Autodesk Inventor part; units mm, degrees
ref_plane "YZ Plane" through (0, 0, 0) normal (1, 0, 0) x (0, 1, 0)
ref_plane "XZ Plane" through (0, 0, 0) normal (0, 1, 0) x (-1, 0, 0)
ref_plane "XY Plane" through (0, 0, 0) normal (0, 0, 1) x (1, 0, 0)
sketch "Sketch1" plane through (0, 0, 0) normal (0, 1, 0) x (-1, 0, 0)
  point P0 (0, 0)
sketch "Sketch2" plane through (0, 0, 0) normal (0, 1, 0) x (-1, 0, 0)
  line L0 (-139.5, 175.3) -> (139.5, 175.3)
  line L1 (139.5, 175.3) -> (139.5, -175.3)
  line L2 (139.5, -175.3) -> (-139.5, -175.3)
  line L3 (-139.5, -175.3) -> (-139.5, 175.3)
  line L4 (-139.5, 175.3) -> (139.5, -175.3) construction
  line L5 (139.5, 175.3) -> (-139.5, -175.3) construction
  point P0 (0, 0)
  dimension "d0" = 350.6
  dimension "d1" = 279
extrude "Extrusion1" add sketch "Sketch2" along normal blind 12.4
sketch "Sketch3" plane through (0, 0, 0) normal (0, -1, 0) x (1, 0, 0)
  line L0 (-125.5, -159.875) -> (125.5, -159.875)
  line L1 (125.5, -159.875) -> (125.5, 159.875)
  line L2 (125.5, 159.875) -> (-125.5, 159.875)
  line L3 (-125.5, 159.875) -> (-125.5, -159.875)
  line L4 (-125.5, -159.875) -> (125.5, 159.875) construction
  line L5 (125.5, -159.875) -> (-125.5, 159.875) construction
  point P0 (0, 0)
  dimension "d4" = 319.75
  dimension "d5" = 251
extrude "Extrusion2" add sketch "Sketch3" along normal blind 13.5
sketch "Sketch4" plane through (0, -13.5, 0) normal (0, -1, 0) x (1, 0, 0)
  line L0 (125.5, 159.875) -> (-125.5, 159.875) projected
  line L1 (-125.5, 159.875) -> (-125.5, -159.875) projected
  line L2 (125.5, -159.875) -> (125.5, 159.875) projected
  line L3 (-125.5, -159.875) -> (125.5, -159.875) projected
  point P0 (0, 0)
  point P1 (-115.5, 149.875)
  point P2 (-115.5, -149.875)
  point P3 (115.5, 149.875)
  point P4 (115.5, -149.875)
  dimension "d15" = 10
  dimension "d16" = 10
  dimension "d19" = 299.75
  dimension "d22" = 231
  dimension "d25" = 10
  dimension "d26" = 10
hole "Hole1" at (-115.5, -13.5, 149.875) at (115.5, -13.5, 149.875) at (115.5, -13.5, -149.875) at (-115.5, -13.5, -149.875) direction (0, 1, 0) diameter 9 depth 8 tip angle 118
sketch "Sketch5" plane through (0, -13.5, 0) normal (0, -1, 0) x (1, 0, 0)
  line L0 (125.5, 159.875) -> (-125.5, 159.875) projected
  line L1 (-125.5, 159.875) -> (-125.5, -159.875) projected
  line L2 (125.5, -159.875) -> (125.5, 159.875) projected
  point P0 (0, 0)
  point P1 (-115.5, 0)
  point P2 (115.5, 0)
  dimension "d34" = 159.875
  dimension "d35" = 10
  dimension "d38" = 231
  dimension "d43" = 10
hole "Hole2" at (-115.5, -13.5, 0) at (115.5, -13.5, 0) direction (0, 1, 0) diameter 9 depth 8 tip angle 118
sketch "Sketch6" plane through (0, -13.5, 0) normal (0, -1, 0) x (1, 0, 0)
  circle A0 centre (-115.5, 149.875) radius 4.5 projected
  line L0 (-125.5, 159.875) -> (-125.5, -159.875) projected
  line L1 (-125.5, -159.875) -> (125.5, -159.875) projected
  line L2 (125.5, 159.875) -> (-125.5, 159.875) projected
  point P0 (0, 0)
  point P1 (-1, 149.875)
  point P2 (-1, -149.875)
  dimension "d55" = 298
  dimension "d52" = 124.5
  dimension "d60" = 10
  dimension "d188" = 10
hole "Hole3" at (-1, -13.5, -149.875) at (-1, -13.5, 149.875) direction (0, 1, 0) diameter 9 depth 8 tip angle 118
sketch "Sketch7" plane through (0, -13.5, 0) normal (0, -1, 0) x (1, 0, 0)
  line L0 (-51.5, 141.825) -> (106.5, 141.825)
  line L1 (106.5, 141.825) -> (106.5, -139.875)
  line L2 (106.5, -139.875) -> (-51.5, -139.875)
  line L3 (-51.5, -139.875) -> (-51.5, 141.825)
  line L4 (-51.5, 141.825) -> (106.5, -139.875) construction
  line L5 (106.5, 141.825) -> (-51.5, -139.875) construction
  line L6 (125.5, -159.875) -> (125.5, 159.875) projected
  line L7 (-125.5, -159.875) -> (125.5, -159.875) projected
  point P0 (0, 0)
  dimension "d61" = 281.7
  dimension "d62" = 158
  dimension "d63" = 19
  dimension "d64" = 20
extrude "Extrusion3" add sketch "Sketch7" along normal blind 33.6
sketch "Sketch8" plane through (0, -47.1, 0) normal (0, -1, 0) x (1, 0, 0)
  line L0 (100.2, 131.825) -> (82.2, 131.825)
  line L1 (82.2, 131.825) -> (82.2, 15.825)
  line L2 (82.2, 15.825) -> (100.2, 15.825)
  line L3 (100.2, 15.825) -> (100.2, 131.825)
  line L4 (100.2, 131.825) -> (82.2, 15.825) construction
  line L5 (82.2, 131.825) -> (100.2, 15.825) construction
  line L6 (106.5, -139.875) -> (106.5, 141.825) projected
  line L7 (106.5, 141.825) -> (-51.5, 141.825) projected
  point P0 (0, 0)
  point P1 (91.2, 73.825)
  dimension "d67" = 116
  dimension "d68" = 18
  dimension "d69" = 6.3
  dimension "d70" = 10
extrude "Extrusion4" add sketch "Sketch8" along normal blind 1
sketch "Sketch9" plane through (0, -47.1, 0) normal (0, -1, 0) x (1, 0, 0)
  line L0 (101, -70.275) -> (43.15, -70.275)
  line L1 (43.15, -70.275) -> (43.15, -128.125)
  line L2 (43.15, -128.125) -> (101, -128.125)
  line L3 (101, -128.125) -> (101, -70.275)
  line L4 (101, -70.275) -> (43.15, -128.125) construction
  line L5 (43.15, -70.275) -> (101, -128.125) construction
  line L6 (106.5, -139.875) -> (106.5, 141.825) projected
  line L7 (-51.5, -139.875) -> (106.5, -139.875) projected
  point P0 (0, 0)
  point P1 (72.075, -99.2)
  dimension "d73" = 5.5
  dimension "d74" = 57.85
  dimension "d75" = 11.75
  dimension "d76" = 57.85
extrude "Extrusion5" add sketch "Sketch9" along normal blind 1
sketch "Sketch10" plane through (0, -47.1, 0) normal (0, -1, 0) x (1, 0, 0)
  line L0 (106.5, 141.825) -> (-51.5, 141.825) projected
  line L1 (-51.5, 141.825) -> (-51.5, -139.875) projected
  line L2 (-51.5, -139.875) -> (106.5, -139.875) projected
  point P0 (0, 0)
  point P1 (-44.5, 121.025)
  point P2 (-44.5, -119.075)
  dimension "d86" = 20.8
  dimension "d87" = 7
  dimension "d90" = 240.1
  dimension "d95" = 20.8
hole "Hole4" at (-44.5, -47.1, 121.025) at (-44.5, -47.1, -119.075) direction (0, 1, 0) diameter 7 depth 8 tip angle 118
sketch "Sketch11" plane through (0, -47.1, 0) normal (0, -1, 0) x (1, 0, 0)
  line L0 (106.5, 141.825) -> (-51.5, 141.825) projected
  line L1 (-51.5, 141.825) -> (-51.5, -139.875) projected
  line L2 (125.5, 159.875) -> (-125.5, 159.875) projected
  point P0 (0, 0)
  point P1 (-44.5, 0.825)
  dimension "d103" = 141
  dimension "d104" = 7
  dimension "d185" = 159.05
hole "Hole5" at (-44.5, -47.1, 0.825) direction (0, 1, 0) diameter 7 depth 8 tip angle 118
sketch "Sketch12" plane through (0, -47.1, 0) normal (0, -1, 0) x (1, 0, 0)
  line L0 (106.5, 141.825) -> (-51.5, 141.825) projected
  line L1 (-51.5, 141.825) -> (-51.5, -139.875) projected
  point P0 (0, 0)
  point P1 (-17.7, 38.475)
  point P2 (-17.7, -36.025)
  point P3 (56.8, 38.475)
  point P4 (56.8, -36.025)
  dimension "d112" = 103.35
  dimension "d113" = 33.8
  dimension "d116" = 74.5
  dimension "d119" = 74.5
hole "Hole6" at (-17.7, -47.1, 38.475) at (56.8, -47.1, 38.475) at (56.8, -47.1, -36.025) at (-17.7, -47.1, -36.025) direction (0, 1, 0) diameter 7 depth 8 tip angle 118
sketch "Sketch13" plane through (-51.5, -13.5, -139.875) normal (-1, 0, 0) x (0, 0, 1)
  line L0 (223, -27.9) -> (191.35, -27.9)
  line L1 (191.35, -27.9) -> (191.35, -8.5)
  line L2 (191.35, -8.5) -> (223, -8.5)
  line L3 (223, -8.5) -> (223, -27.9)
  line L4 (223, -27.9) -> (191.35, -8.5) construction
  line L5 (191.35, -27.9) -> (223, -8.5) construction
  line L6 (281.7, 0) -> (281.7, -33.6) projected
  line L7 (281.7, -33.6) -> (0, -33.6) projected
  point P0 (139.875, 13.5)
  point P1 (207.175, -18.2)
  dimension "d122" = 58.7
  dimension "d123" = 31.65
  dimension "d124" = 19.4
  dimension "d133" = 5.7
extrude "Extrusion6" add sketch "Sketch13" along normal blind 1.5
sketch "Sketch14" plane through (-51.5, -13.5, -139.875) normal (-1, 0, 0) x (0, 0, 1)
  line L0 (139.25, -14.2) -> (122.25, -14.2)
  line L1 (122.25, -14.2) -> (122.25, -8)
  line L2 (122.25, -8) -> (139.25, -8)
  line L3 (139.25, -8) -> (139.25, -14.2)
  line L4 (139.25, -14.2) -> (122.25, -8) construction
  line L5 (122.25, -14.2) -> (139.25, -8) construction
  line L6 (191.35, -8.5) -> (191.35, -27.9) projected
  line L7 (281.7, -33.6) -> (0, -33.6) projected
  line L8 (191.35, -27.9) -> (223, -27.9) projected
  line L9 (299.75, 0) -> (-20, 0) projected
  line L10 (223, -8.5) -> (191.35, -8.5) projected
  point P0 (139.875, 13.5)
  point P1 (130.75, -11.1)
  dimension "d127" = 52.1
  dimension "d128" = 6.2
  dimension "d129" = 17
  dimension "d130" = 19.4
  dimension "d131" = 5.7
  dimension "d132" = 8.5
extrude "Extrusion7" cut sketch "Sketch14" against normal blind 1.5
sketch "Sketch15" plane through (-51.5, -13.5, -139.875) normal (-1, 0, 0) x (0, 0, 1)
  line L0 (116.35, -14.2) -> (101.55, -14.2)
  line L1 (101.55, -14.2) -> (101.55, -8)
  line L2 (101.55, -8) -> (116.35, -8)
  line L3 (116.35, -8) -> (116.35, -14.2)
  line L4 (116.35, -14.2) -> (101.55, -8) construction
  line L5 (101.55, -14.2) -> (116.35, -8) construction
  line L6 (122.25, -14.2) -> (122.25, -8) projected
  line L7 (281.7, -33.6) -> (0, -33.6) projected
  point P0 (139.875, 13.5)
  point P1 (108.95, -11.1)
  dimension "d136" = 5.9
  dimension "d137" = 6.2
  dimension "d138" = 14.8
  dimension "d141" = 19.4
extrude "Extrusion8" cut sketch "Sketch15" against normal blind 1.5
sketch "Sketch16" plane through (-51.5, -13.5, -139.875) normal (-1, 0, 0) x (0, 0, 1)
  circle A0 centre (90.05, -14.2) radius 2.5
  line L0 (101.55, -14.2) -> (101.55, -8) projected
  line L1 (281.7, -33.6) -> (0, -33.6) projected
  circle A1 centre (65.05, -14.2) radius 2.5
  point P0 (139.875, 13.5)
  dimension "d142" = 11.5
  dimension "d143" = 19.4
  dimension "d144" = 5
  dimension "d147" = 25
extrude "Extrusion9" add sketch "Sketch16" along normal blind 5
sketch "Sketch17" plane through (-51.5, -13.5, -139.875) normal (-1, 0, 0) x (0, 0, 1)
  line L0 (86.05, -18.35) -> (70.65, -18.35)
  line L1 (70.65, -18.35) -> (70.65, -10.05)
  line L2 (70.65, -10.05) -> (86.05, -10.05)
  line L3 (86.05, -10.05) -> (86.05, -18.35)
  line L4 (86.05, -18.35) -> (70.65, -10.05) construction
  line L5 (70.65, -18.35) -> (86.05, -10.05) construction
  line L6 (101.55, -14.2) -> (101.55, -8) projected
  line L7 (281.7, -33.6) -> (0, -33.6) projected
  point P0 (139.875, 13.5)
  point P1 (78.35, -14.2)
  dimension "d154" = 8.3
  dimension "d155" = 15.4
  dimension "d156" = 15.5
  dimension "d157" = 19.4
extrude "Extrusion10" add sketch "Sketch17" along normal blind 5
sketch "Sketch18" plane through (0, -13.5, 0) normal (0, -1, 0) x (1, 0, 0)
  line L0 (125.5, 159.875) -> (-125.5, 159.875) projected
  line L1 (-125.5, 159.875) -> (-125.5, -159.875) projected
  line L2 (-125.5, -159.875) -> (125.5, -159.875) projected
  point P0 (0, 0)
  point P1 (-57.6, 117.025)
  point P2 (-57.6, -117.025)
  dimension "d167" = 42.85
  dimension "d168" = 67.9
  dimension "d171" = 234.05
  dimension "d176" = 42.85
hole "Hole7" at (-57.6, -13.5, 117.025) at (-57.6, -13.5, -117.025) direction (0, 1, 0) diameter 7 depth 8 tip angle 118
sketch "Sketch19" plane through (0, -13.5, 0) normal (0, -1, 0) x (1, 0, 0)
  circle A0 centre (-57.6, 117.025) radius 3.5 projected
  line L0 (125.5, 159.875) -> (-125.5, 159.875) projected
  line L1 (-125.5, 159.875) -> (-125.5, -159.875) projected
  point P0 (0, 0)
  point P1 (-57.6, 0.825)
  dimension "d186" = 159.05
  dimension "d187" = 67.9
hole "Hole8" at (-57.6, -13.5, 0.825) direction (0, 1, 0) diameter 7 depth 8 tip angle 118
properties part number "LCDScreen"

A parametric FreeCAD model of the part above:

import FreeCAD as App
import Part
import Sketcher

V = App.Vector
Q = App.Units.Quantity


def add_polygon(sketch, points):
    """Adds a closed chain of lines whose ends are joined by coincident constraints."""
    first, n = sketch.GeometryCount, len(points)
    for a, b in zip(points, points[1:] + points[:1]):
        sketch.addGeometry(Part.LineSegment(App.Vector(*a, 0), App.Vector(*b, 0)), False)
    for i in range(n):
        sketch.addConstraint(Sketcher.Constraint("Coincident", first + i, 2, first + (i + 1) % n, 1))

doc = App.newDocument("Part")
body = doc.addObject("PartDesign::Body", "Body")

# Sketch on XZ plane
sketch1 = body.newObject("Sketcher::SketchObject", "Sketch")
sketch1.AttachmentSupport = (doc.getObject("XZ_Plane"), [""])
sketch1.MapMode = "FlatFace"
add_polygon(sketch1, [(-140, 175), (140, 175), (140, -175), (-140, -175)])  # lines 0-3
sketch1.addConstraint([
    Sketcher.Constraint("Horizontal", 0),
    Sketcher.Constraint("Vertical", 1),
    Sketcher.Constraint("Horizontal", 2),
    Sketcher.Constraint("Vertical", 3),
    Sketcher.Constraint("Symmetric", 0, 2, 2, 2, -1, 1),
    Sketcher.Constraint("DistanceX", 0, 1, 0, 2, Q("279 mm")),
    Sketcher.Constraint("DistanceY", 1, 2, 1, 1, Q("350.6 mm")),
])
pad1 = body.newObject("PartDesign::Pad", "Pad")
pad1.Profile = sketch1
pad1.Length = 12.4
pad1.Reversed = True

# Sketch on XZ plane
sketch2 = body.newObject("Sketcher::SketchObject", "Sketch001")
sketch2.AttachmentSupport = (doc.getObject("XZ_Plane"), [""])
sketch2.MapMode = "FlatFace"
add_polygon(sketch2, [(-126, 160), (-126, -160), (126, -160), (126, 160)])  # lines 0-3
sketch2.addConstraint([
    Sketcher.Constraint("Vertical", 0),
    Sketcher.Constraint("Horizontal", 1),
    Sketcher.Constraint("Vertical", 2),
    Sketcher.Constraint("Horizontal", 3),
    Sketcher.Constraint("Symmetric", 0, 2, 2, 2, -1, 1),
    Sketcher.Constraint("DistanceX", 1, 1, 1, 2, Q("251 mm")),
    Sketcher.Constraint("DistanceY", 0, 2, 0, 1, Q("319.75 mm")),
])
pad2 = body.newObject("PartDesign::Pad", "Pad001")
pad2.Profile = sketch2
pad2.Length = 13.5

# Sketch on XZ plane
sketch3 = body.newObject("Sketcher::SketchObject", "Sketch002")
sketch3.AttachmentSupport = (doc.getObject("XZ_Plane"), [""])
sketch3.MapMode = "FlatFace"
sketch3.AttachmentOffset = App.Placement(V(0, 0, 13.5), App.Rotation())
sketch3.addGeometry([
    Part.Circle(V(-115.5, 149.9, 0), V(0, 0, 1), 4.5),
    Part.Circle(V(115.5, 149.9, 0), V(0, 0, 1), 4.5),
    Part.Circle(V(115.5, -149.9, 0), V(0, 0, 1), 4.5),
    Part.Circle(V(-115.5, -149.9, 0), V(0, 0, 1), 4.5),
], False)
sketch3.addConstraint([
    Sketcher.Constraint("Equal", 0, 1),
    Sketcher.Constraint("Equal", 1, 2),
    Sketcher.Constraint("Equal", 2, 3),
    Sketcher.Constraint("Symmetric", 0, 3, 2, 3, -1, 1),
    Sketcher.Constraint("Symmetric", 1, 3, 3, 3, -1, 1),
    Sketcher.Constraint("Symmetric", 0, 3, 1, 3, -2),
    Sketcher.Constraint("Diameter", 0, Q("9 mm")),
    Sketcher.Constraint("DistanceX", 0, 3, 1, 3, Q("231 mm")),
    Sketcher.Constraint("DistanceY", 2, 3, 1, 3, Q("299.75 mm")),
])
doc.recompute()
hole = body.newObject("PartDesign::Hole", "Hole")
hole.Profile = sketch3
hole.ThreadType = "None"
hole.Diameter = 9
hole.DepthType = "Dimension"
hole.Depth = 8
hole.DrillPoint = "Angled"
hole.DrillPointAngle = 118

# Sketch on XZ plane
sketch4 = body.newObject("Sketcher::SketchObject", "Sketch003")
sketch4.AttachmentSupport = (doc.getObject("XZ_Plane"), [""])
sketch4.MapMode = "FlatFace"
sketch4.AttachmentOffset = App.Placement(V(0, 0, 13.5), App.Rotation())
sketch4.addGeometry([
    Part.Circle(V(-115.5, 0, 0), V(0, 0, 1), 4.5),
    Part.Circle(V(115.5, 0, 0), V(0, 0, 1), 4.5),
], False)
sketch4.addConstraint([
    Sketcher.Constraint("Equal", 0, 1),
    Sketcher.Constraint("Symmetric", 0, 3, 1, 3, -1, 1),
    Sketcher.Constraint("PointOnObject", 0, 3, -1),
    Sketcher.Constraint("Diameter", 0, Q("9 mm")),
    Sketcher.Constraint("DistanceX", 0, 3, 1, 3, Q("231 mm")),
])
doc.recompute()
hole2 = body.newObject("PartDesign::Hole", "Hole001")
hole2.Profile = sketch4
hole2.ThreadType = "None"
hole2.Diameter = 9
hole2.DepthType = "Dimension"
hole2.Depth = 8
hole2.DrillPoint = "Angled"
hole2.DrillPointAngle = 118

# Sketch on XZ plane
sketch5 = body.newObject("Sketcher::SketchObject", "Sketch004")
sketch5.AttachmentSupport = (doc.getObject("XZ_Plane"), [""])
sketch5.MapMode = "FlatFace"
sketch5.AttachmentOffset = App.Placement(V(0, 0, 13.5), App.Rotation())
sketch5.addGeometry([
    Part.Circle(V(-1, -149.9, 0), V(0, 0, 1), 4.5),
    Part.Circle(V(-1, 149.9, 0), V(0, 0, 1), 4.5),
], False)
sketch5.addConstraint([
    Sketcher.Constraint("Equal", 0, 1),
    Sketcher.Constraint("Symmetric", 0, 3, 1, 3, -1),
    Sketcher.Constraint("Diameter", 0, Q("9 mm")),
    Sketcher.Constraint("DistanceX", 0, 3, -1, 1, Q("1 mm")),
    Sketcher.Constraint("DistanceY", 0, 3, 1, 3, Q("299.75 mm")),
])
doc.recompute()
hole3 = body.newObject("PartDesign::Hole", "Hole002")
hole3.Profile = sketch5
hole3.ThreadType = "None"
hole3.Diameter = 9
hole3.DepthType = "Dimension"
hole3.Depth = 8
hole3.DrillPoint = "Angled"
hole3.DrillPointAngle = 118

# Sketch on XZ plane
sketch6 = body.newObject("Sketcher::SketchObject", "Sketch005")
sketch6.AttachmentSupport = (doc.getObject("XZ_Plane"), [""])
sketch6.MapMode = "FlatFace"
sketch6.AttachmentOffset = App.Placement(V(0, 0, 13.5), App.Rotation())
add_polygon(sketch6, [(106, 142), (-52, 142), (-52, -140), (106, -140)])  # lines 0-3
sketch6.addConstraint([
    Sketcher.Constraint("Horizontal", 0),
    Sketcher.Constraint("Vertical", 1),
    Sketcher.Constraint("Horizontal", 2),
    Sketcher.Constraint("Vertical", 3),
    Sketcher.Constraint("DistanceX", 0, 2, 0, 1, Q("158 mm")),
    Sketcher.Constraint("DistanceY", 1, 2, 1, 1, Q("281.7 mm")),
    Sketcher.Constraint("DistanceX", 0, 2, -1, 1, Q("51.5 mm")),
    Sketcher.Constraint("DistanceY", -1, 1, 0, 2, Q("141.825 mm")),
])
pad3 = body.newObject("PartDesign::Pad", "Pad002")
pad3.Profile = sketch6
pad3.Length = 33.6

# Sketch on XZ plane
sketch7 = body.newObject("Sketcher::SketchObject", "Sketch006")
sketch7.AttachmentSupport = (doc.getObject("XZ_Plane"), [""])
sketch7.MapMode = "FlatFace"
sketch7.AttachmentOffset = App.Placement(V(0, 0, 47.1), App.Rotation())
add_polygon(sketch7, [(100, 16), (100, 132), (82, 132), (82, 16)])  # lines 0-3
sketch7.addConstraint([
    Sketcher.Constraint("Vertical", 0),
    Sketcher.Constraint("Horizontal", 1),
    Sketcher.Constraint("Vertical", 2),
    Sketcher.Constraint("Horizontal", 3),
    Sketcher.Constraint("DistanceX", 1, 2, 1, 1, Q("18 mm")),
    Sketcher.Constraint("DistanceY", 0, 1, 0, 2, Q("116 mm")),
    Sketcher.Constraint("DistanceX", -1, 1, 0, 2, Q("100.2 mm")),
    Sketcher.Constraint("DistanceY", -1, 1, 0, 2, Q("131.825 mm")),
])
pad4 = body.newObject("PartDesign::Pad", "Pad003")
pad4.Profile = sketch7
pad4.Length = 1

# Sketch on XZ plane
sketch8 = body.newObject("Sketcher::SketchObject", "Sketch007")
sketch8.AttachmentSupport = (doc.getObject("XZ_Plane"), [""])
sketch8.MapMode = "FlatFace"
sketch8.AttachmentOffset = App.Placement(V(0, 0, 47.1), App.Rotation())
add_polygon(sketch8, [(101, -128), (101, -70), (43, -70), (43, -128)])  # lines 0-3
sketch8.addConstraint([
    Sketcher.Constraint("Vertical", 0),
    Sketcher.Constraint("Horizontal", 1),
    Sketcher.Constraint("Vertical", 2),
    Sketcher.Constraint("Horizontal", 3),
    Sketcher.Constraint("Equal", 3, 0),
    Sketcher.Constraint("DistanceX", 1, 2, 1, 1, Q("57.85 mm")),
    Sketcher.Constraint("DistanceX", -1, 1, 0, 2, Q("101 mm")),
    Sketcher.Constraint("DistanceY", 0, 2, -1, 1, Q("70.275 mm")),
])
pad5 = body.newObject("PartDesign::Pad", "Pad004")
pad5.Profile = sketch8
pad5.Length = 1

# Sketch on XZ plane
sketch9 = body.newObject("Sketcher::SketchObject", "Sketch008")
sketch9.AttachmentSupport = (doc.getObject("XZ_Plane"), [""])
sketch9.MapMode = "FlatFace"
sketch9.AttachmentOffset = App.Placement(V(0, 0, 47.1), App.Rotation())
sketch9.addGeometry([
    Part.Circle(V(-44.5, 121, 0), V(0, 0, 1), 3.5),
    Part.Circle(V(-44.5, -119.1, 0), V(0, 0, 1), 3.5),
], False)
sketch9.addConstraint([
    Sketcher.Constraint("Equal", 0, 1),
    Sketcher.Constraint("Vertical", 0, 3, 1, 3),
    Sketcher.Constraint("Diameter", 0, Q("7 mm")),
    Sketcher.Constraint("DistanceX", 0, 3, -1, 1, Q("44.5 mm")),
    Sketcher.Constraint("DistanceY", 1, 3, 0, 3, Q("240.1 mm")),
    Sketcher.Constraint("DistanceY", -1, 1, 0, 3, Q("121.025 mm")),
])
doc.recompute()
hole4 = body.newObject("PartDesign::Hole", "Hole003")
hole4.Profile = sketch9
hole4.ThreadType = "None"
hole4.Diameter = 7
hole4.DepthType = "Dimension"
hole4.Depth = 8
hole4.DrillPoint = "Angled"
hole4.DrillPointAngle = 118

# Sketch on XZ plane
sketch10 = body.newObject("Sketcher::SketchObject", "Sketch009")
sketch10.AttachmentSupport = (doc.getObject("XZ_Plane"), [""])
sketch10.MapMode = "FlatFace"
sketch10.AttachmentOffset = App.Placement(V(0, 0, 47.1), App.Rotation())
sketch10.addGeometry(Part.Circle(V(-44.5, 0.8, 0), V(0, 0, 1), 3.5), False)
sketch10.addConstraint([
    Sketcher.Constraint("Diameter", 0, Q("7 mm")),
    Sketcher.Constraint("DistanceX", 0, 3, -1, 1, Q("44.5 mm")),
    Sketcher.Constraint("DistanceY", -1, 1, 0, 3, Q("0.825 mm")),
])
doc.recompute()
hole5 = body.newObject("PartDesign::Hole", "Hole004")
hole5.Profile = sketch10
hole5.ThreadType = "None"
hole5.Diameter = 7
hole5.DepthType = "Dimension"
hole5.Depth = 8
hole5.DrillPoint = "Angled"
hole5.DrillPointAngle = 118

# Sketch on XZ plane
sketch11 = body.newObject("Sketcher::SketchObject", "Sketch010")
sketch11.AttachmentSupport = (doc.getObject("XZ_Plane"), [""])
sketch11.MapMode = "FlatFace"
sketch11.AttachmentOffset = App.Placement(V(0, 0, 47.1), App.Rotation())
sketch11.addGeometry([
    Part.Circle(V(-17.7, 38.5, 0), V(0, 0, 1), 3.5),
    Part.Circle(V(56.8, 38.5, 0), V(0, 0, 1), 3.5),
    Part.Circle(V(56.8, -36, 0), V(0, 0, 1), 3.5),
    Part.Circle(V(-17.7, -36, 0), V(0, 0, 1), 3.5),
], False)
sketch11.addConstraint([
    Sketcher.Constraint("Equal", 0, 1),
    Sketcher.Constraint("Equal", 1, 2),
    Sketcher.Constraint("Equal", 2, 3),
    Sketcher.Constraint("Horizontal", 0, 3, 1, 3),
    Sketcher.Constraint("Horizontal", 2, 3, 3, 3),
    Sketcher.Constraint("Vertical", 1, 3, 2, 3),
    Sketcher.Constraint("Vertical", 0, 3, 3, 3),
    Sketcher.Constraint("Diameter", 0, Q("7 mm")),
    Sketcher.Constraint("DistanceX", 0, 3, -1, 1, Q("17.7 mm")),
    Sketcher.Constraint("DistanceX", -1, 1, 1, 3, Q("56.8 mm")),
    Sketcher.Constraint("DistanceY", 2, 3, 1, 3, Q("74.5 mm")),
    Sketcher.Constraint("DistanceY", -1, 1, 0, 3, Q("38.475 mm")),
])
doc.recompute()
hole6 = body.newObject("PartDesign::Hole", "Hole005")
hole6.Profile = sketch11
hole6.ThreadType = "None"
hole6.Diameter = 7
hole6.DepthType = "Dimension"
hole6.Depth = 8
hole6.DrillPoint = "Angled"
hole6.DrillPointAngle = 118

# Sketch on YZ plane
sketch12 = body.newObject("Sketcher::SketchObject", "Sketch011")
sketch12.AttachmentSupport = (doc.getObject("YZ_Plane"), [""])
sketch12.MapMode = "FlatFace"
sketch12.AttachmentOffset = App.Placement(V(0, 0, -51.5), App.Rotation())
add_polygon(sketch12, [(-41, 51), (-41, 83), (-22, 83), (-22, 51)])  # lines 0-3
sketch12.addConstraint([
    Sketcher.Constraint("Vertical", 0),
    Sketcher.Constraint("Horizontal", 1),
    Sketcher.Constraint("Vertical", 2),
    Sketcher.Constraint("Horizontal", 3),
    Sketcher.Constraint("DistanceX", 1, 1, 1, 2, Q("19.4 mm")),
    Sketcher.Constraint("DistanceY", 0, 1, 0, 2, Q("31.65 mm")),
    Sketcher.Constraint("DistanceX", 1, 2, -1, 1, Q("22 mm")),
    Sketcher.Constraint("DistanceY", -1, 1, 0, 2, Q("83.125 mm")),
])
pad6 = body.newObject("PartDesign::Pad", "Pad005")
pad6.Profile = sketch12
pad6.Length = 1.5
pad6.Reversed = True

# Sketch on YZ plane
sketch13 = body.newObject("Sketcher::SketchObject", "Sketch012")
sketch13.AttachmentSupport = (doc.getObject("YZ_Plane"), [""])
sketch13.MapMode = "FlatFace"
sketch13.AttachmentOffset = App.Placement(V(0, 0, -51.5), App.Rotation())
add_polygon(sketch13, [(-28, -18), (-28, -1), (-22, -1), (-22, -18)])  # lines 0-3
sketch13.addConstraint([
    Sketcher.Constraint("Vertical", 0),
    Sketcher.Constraint("Horizontal", 1),
    Sketcher.Constraint("Vertical", 2),
    Sketcher.Constraint("Horizontal", 3),
    Sketcher.Constraint("DistanceY", 0, 1, 0, 2, Q("17 mm")),
    Sketcher.Constraint("DistanceX", 1, 1, 1, 2, Q("6.2 mm")),
    Sketcher.Constraint("DistanceX", 0, 2, -1, 1, Q("27.7 mm")),
    Sketcher.Constraint("DistanceY", 0, 2, -1, 1, Q("0.625 mm")),
])
pocket1 = body.newObject("PartDesign::Pocket", "Pocket")
pocket1.Profile = sketch13
pocket1.Length = 1.5
pocket1.Reversed = True

# Sketch on YZ plane
sketch14 = body.newObject("Sketcher::SketchObject", "Sketch013")
sketch14.AttachmentSupport = (doc.getObject("YZ_Plane"), [""])
sketch14.MapMode = "FlatFace"
sketch14.AttachmentOffset = App.Placement(V(0, 0, -51.5), App.Rotation())
add_polygon(sketch14, [(-28, -38), (-28, -24), (-22, -24), (-22, -38)])  # lines 0-3
sketch14.addConstraint([
    Sketcher.Constraint("Vertical", 0),
    Sketcher.Constraint("Horizontal", 1),
    Sketcher.Constraint("Vertical", 2),
    Sketcher.Constraint("Horizontal", 3),
    Sketcher.Constraint("DistanceX", 1, 1, 1, 2, Q("6.2 mm")),
    Sketcher.Constraint("DistanceY", 0, 1, 0, 2, Q("14.8 mm")),
    Sketcher.Constraint("DistanceX", 0, 2, -1, 1, Q("27.7 mm")),
    Sketcher.Constraint("DistanceY", 0, 2, -1, 1, Q("23.525 mm")),
])
pocket2 = body.newObject("PartDesign::Pocket", "Pocket001")
pocket2.Profile = sketch14
pocket2.Length = 1.5
pocket2.Reversed = True

# Sketch on YZ plane
sketch15 = body.newObject("Sketcher::SketchObject", "Sketch014")
sketch15.AttachmentSupport = (doc.getObject("YZ_Plane"), [""])
sketch15.MapMode = "FlatFace"
sketch15.AttachmentOffset = App.Placement(V(0, 0, -51.5), App.Rotation())
sketch15.addGeometry([
    Part.Circle(V(-27.7, -49.8, 0), V(0, 0, 1), 2.5),
    Part.Circle(V(-27.7, -74.8, 0), V(0, 0, 1), 2.5),
], False)
sketch15.addConstraint([
    Sketcher.Constraint("Equal", 0, 1),
    Sketcher.Constraint("Vertical", 0, 3, 1, 3),
    Sketcher.Constraint("Diameter", 0, Q("5 mm")),
    Sketcher.Constraint("DistanceY", 1, 3, 0, 3, Q("25 mm")),
    Sketcher.Constraint("DistanceX", 0, 3, -1, 1, Q("27.7 mm")),
    Sketcher.Constraint("DistanceY", 0, 3, -1, 1, Q("49.825 mm")),
])
pad7 = body.newObject("PartDesign::Pad", "Pad006")
pad7.Profile = sketch15
pad7.Length = 5
pad7.Reversed = True

# Sketch on YZ plane
sketch16 = body.newObject("Sketcher::SketchObject", "Sketch015")
sketch16.AttachmentSupport = (doc.getObject("YZ_Plane"), [""])
sketch16.MapMode = "FlatFace"
sketch16.AttachmentOffset = App.Placement(V(0, 0, -51.5), App.Rotation())
add_polygon(sketch16, [(-32, -69), (-32, -54), (-24, -54), (-24, -69)])  # lines 0-3
sketch16.addConstraint([
    Sketcher.Constraint("Vertical", 0),
    Sketcher.Constraint("Horizontal", 1),
    Sketcher.Constraint("Vertical", 2),
    Sketcher.Constraint("Horizontal", 3),
    Sketcher.Constraint("DistanceX", 1, 1, 1, 2, Q("8.3 mm")),
    Sketcher.Constraint("DistanceY", 0, 1, 0, 2, Q("15.4 mm")),
    Sketcher.Constraint("DistanceX", 0, 2, -1, 1, Q("31.85 mm")),
    Sketcher.Constraint("DistanceY", 0, 2, -1, 1, Q("53.825 mm")),
])
pad8 = body.newObject("PartDesign::Pad", "Pad007")
pad8.Profile = sketch16
pad8.Length = 5
pad8.Reversed = True

# Sketch on XZ plane
sketch17 = body.newObject("Sketcher::SketchObject", "Sketch016")
sketch17.AttachmentSupport = (doc.getObject("XZ_Plane"), [""])
sketch17.MapMode = "FlatFace"
sketch17.AttachmentOffset = App.Placement(V(0, 0, 13.5), App.Rotation())
sketch17.addGeometry([
    Part.Circle(V(-57.6, 117, 0), V(0, 0, 1), 3.5),
    Part.Circle(V(-57.6, -117, 0), V(0, 0, 1), 3.5),
], False)
sketch17.addConstraint([
    Sketcher.Constraint("Equal", 0, 1),
    Sketcher.Constraint("Symmetric", 0, 3, 1, 3, -1),
    Sketcher.Constraint("Diameter", 0, Q("7 mm")),
    Sketcher.Constraint("DistanceX", 0, 3, -1, 1, Q("57.6 mm")),
    Sketcher.Constraint("DistanceY", 1, 3, 0, 3, Q("234.05 mm")),
])
doc.recompute()
hole7 = body.newObject("PartDesign::Hole", "Hole006")
hole7.Profile = sketch17
hole7.ThreadType = "None"
hole7.Diameter = 7
hole7.DepthType = "Dimension"
hole7.Depth = 8
hole7.DrillPoint = "Angled"
hole7.DrillPointAngle = 118

# Sketch on XZ plane
sketch18 = body.newObject("Sketcher::SketchObject", "Sketch017")
sketch18.AttachmentSupport = (doc.getObject("XZ_Plane"), [""])
sketch18.MapMode = "FlatFace"
sketch18.AttachmentOffset = App.Placement(V(0, 0, 13.5), App.Rotation())
sketch18.addGeometry(Part.Circle(V(-57.6, 0.8, 0), V(0, 0, 1), 3.5), False)
sketch18.addConstraint([
    Sketcher.Constraint("Diameter", 0, Q("7 mm")),
    Sketcher.Constraint("DistanceX", 0, 3, -1, 1, Q("57.6 mm")),
    Sketcher.Constraint("DistanceY", -1, 1, 0, 3, Q("0.825 mm")),
])
doc.recompute()
hole8 = body.newObject("PartDesign::Hole", "Hole007")
hole8.Profile = sketch18
hole8.ThreadType = "None"
hole8.Diameter = 7
hole8.DepthType = "Dimension"
hole8.Depth = 8
hole8.DrillPoint = "Angled"
hole8.DrillPointAngle = 118

doc.recompute()
